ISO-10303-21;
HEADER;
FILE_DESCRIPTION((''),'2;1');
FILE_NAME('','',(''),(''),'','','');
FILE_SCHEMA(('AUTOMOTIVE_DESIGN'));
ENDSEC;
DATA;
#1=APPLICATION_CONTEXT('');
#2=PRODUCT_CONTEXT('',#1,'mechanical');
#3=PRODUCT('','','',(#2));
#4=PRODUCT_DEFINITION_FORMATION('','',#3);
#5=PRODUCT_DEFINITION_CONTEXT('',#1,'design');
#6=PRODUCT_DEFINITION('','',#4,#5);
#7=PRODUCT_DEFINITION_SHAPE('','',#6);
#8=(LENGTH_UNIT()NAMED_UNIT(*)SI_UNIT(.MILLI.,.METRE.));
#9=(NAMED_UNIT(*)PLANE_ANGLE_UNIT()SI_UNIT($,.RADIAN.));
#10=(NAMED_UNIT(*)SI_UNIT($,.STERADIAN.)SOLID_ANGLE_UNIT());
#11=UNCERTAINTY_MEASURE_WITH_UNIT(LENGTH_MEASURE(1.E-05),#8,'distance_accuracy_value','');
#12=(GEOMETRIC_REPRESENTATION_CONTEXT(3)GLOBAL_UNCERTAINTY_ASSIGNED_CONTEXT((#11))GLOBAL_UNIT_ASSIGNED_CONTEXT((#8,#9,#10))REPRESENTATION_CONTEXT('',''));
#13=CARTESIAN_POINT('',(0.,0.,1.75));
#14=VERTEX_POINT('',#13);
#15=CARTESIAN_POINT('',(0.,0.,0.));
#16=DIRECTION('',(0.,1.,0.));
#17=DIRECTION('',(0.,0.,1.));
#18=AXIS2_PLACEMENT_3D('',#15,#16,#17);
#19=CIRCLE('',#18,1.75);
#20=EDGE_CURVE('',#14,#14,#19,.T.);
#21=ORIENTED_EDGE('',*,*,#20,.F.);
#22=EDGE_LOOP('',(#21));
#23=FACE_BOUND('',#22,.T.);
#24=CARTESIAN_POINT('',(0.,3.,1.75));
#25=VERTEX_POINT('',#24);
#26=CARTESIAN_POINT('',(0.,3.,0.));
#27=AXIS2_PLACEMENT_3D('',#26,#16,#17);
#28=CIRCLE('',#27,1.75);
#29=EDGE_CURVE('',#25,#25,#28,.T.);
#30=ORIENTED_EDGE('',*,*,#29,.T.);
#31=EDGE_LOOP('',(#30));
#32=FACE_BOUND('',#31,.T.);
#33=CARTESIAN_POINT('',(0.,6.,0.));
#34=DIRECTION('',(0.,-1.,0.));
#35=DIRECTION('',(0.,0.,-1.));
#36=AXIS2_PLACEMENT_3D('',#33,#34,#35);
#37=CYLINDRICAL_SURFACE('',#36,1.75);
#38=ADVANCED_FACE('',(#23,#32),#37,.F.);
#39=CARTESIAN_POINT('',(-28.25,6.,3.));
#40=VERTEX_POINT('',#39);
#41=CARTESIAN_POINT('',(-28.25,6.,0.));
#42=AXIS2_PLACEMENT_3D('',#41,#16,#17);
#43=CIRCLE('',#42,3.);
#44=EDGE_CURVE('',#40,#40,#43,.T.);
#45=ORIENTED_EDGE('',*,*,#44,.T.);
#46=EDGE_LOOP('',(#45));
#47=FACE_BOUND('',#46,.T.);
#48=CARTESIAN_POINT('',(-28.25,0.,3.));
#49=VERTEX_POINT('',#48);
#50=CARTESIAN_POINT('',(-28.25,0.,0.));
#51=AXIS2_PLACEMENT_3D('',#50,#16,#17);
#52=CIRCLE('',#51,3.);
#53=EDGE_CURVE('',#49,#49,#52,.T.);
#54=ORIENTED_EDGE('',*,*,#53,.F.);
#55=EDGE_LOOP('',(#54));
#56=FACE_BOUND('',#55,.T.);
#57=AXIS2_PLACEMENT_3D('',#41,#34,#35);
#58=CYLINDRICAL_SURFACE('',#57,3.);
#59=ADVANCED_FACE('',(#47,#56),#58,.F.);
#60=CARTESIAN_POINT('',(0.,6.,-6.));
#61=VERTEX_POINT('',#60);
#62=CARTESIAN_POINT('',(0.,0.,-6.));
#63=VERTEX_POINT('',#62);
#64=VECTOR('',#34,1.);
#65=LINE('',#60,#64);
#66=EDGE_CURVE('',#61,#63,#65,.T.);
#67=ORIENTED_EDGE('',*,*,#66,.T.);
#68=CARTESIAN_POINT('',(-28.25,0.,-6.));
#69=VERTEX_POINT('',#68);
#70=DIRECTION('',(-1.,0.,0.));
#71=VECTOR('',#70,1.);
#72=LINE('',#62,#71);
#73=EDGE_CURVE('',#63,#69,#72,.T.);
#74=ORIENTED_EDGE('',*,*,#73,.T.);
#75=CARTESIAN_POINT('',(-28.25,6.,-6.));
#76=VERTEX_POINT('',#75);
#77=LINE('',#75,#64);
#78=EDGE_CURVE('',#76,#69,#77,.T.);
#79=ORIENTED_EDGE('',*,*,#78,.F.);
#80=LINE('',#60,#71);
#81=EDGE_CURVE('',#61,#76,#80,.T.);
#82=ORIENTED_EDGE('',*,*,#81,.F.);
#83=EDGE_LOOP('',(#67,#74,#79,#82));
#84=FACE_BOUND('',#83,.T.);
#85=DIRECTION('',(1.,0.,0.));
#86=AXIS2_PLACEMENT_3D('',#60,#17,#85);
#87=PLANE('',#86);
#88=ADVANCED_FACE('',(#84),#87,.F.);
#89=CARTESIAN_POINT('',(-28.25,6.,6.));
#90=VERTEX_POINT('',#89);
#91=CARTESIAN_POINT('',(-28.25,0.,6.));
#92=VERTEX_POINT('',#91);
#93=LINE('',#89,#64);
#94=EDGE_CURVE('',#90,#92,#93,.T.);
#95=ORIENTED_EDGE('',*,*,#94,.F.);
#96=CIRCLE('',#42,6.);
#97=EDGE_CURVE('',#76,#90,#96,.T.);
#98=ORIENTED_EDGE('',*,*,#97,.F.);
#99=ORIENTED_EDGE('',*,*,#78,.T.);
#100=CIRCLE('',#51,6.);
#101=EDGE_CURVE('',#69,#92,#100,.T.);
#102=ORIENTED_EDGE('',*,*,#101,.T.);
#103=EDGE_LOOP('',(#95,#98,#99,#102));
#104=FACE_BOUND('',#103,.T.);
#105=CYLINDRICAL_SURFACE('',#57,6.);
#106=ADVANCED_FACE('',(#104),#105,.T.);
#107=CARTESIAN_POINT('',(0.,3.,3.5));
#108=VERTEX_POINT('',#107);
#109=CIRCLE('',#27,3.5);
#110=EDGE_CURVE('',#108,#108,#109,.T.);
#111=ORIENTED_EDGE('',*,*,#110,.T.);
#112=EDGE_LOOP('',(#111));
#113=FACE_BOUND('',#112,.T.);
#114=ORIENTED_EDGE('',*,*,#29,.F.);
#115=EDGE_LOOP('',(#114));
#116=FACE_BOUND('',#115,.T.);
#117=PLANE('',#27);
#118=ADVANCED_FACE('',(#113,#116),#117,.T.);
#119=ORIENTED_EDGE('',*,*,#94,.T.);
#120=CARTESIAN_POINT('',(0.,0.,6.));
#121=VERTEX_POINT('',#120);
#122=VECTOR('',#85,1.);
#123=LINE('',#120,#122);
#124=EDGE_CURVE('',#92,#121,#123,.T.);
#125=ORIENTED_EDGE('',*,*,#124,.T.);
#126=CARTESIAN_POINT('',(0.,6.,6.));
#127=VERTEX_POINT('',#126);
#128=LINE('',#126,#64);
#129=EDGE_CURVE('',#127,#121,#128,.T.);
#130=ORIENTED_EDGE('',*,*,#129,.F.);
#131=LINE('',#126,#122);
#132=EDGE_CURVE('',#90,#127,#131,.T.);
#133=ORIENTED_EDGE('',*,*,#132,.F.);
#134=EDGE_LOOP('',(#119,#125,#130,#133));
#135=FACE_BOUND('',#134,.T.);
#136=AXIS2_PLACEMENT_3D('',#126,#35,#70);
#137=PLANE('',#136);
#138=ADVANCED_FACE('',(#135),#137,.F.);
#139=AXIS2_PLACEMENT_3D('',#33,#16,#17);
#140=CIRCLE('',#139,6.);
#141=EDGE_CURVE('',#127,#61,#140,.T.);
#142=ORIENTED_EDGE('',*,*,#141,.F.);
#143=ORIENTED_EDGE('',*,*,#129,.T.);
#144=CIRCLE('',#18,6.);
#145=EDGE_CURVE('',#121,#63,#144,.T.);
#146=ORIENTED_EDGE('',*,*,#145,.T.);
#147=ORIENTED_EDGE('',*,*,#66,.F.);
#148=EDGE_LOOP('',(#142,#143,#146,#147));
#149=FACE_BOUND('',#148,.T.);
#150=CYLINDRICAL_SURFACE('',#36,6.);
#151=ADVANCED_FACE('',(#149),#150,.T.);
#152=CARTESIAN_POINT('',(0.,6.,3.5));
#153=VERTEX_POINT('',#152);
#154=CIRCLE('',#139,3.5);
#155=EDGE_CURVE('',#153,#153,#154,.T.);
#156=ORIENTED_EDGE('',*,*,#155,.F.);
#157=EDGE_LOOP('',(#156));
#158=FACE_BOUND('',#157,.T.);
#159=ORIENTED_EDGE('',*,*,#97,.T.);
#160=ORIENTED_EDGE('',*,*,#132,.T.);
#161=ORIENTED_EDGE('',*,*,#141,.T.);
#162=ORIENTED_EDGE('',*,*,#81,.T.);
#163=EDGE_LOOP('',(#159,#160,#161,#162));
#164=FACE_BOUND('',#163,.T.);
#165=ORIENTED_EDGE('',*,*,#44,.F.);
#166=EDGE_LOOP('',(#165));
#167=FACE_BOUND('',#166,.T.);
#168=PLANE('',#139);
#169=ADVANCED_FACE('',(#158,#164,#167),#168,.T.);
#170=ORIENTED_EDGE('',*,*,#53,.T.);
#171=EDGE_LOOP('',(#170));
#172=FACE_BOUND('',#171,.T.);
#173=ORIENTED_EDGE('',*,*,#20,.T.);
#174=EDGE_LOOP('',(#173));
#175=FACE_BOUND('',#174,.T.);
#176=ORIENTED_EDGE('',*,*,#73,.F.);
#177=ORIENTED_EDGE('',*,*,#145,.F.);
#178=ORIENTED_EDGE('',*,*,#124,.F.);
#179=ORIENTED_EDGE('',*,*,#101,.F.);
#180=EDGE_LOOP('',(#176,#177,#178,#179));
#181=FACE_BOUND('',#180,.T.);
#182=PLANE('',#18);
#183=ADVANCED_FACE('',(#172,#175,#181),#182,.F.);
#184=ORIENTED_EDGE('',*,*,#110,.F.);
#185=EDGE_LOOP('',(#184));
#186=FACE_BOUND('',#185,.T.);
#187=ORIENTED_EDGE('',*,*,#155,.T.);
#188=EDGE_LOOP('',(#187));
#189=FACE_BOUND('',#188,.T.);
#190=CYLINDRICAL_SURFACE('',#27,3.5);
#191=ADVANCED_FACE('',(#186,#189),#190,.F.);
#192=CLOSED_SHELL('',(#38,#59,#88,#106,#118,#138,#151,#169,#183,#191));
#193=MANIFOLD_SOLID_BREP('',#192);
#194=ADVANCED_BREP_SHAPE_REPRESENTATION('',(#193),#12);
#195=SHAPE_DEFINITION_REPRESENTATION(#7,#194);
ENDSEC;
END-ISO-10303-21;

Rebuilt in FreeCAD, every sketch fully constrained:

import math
import FreeCAD as App
import Part
import Sketcher
Q = App.Units.Quantity

doc = App.newDocument("Part")
body = doc.addObject("PartDesign::Body", "Body")

# Sketch on XZ plane
sketch1 = body.newObject("Sketcher::SketchObject", "Sketch")
sketch1.AttachmentSupport = (doc.getObject("XZ_Plane"), [""])
sketch1.MapMode = "FlatFace"
sketch1.addGeometry([
    Part.LineSegment(App.Vector(-28.25, 6, 0), App.Vector(0, 6, 0)),  # 0
    Part.ArcOfCircle(Part.Circle(App.Vector(0, 0, 0), App.Vector(0, 0, 1), 6), math.radians(-90), math.radians(90)),  # 1
    Part.LineSegment(App.Vector(0, -6, 0), App.Vector(-28.25, -6, 0)),  # 2
    Part.ArcOfCircle(Part.Circle(App.Vector(-28.25, 0, 0), App.Vector(0, 0, 1), 6), math.radians(90), math.radians(270)),  # 3
    Part.Circle(App.Vector(0, 0, 0), App.Vector(0, 0, 1), 1.75),  # 4
    Part.Circle(App.Vector(-28.25, 0, 0), App.Vector(0, 0, 1), 3),  # 5
], False)
sketch1.addConstraint([
    Sketcher.Constraint("Tangent", 0, 2, 1, 2),
    Sketcher.Constraint("Tangent", 1, 1, 2, 1),
    Sketcher.Constraint("Tangent", 2, 2, 3, 2),
    Sketcher.Constraint("Tangent", 3, 1, 0, 1),
    Sketcher.Constraint("Horizontal", 0),
    Sketcher.Constraint("Horizontal", 2),
    Sketcher.Constraint("Coincident", 1, 3, -1, 1),
    Sketcher.Constraint("Coincident", 4, 3, -1, 1),
    Sketcher.Constraint("Coincident", 5, 3, 3, 3),
    Sketcher.Constraint("Diameter", 5, Q("6 mm")),
    Sketcher.Constraint("Radius", 1, Q("6 mm")),
    Sketcher.Constraint("Diameter", 4, Q("3.5 mm")),
    Sketcher.Constraint("DistanceX", 0, 1, 0, 2, Q("28.25 mm")),
])
pad1 = body.newObject("PartDesign::Pad", "Pad")
pad1.Profile = sketch1
pad1.Length = 6
pad1.Reversed = True

# Sketch on XZ plane
sketch2 = body.newObject("Sketcher::SketchObject", "Sketch001")
sketch2.AttachmentSupport = (doc.getObject("XZ_Plane"), [""])
sketch2.MapMode = "FlatFace"
sketch2.AttachmentOffset = App.Placement(App.Vector(0, 0, -6), App.Rotation())
sketch2.addGeometry(Part.Circle(App.Vector(0, 0, 0), App.Vector(0, 0, 1), 3.5), False)
sketch2.addConstraint([
    Sketcher.Constraint("Coincident", 0, 3, -1, 1),
    Sketcher.Constraint("Diameter", 0, Q("7 mm")),
])
pocket1 = body.newObject("PartDesign::Pocket", "Pocket")
pocket1.Profile = sketch2
pocket1.Length = 3
pocket1.Reversed = True

doc.recompute()
